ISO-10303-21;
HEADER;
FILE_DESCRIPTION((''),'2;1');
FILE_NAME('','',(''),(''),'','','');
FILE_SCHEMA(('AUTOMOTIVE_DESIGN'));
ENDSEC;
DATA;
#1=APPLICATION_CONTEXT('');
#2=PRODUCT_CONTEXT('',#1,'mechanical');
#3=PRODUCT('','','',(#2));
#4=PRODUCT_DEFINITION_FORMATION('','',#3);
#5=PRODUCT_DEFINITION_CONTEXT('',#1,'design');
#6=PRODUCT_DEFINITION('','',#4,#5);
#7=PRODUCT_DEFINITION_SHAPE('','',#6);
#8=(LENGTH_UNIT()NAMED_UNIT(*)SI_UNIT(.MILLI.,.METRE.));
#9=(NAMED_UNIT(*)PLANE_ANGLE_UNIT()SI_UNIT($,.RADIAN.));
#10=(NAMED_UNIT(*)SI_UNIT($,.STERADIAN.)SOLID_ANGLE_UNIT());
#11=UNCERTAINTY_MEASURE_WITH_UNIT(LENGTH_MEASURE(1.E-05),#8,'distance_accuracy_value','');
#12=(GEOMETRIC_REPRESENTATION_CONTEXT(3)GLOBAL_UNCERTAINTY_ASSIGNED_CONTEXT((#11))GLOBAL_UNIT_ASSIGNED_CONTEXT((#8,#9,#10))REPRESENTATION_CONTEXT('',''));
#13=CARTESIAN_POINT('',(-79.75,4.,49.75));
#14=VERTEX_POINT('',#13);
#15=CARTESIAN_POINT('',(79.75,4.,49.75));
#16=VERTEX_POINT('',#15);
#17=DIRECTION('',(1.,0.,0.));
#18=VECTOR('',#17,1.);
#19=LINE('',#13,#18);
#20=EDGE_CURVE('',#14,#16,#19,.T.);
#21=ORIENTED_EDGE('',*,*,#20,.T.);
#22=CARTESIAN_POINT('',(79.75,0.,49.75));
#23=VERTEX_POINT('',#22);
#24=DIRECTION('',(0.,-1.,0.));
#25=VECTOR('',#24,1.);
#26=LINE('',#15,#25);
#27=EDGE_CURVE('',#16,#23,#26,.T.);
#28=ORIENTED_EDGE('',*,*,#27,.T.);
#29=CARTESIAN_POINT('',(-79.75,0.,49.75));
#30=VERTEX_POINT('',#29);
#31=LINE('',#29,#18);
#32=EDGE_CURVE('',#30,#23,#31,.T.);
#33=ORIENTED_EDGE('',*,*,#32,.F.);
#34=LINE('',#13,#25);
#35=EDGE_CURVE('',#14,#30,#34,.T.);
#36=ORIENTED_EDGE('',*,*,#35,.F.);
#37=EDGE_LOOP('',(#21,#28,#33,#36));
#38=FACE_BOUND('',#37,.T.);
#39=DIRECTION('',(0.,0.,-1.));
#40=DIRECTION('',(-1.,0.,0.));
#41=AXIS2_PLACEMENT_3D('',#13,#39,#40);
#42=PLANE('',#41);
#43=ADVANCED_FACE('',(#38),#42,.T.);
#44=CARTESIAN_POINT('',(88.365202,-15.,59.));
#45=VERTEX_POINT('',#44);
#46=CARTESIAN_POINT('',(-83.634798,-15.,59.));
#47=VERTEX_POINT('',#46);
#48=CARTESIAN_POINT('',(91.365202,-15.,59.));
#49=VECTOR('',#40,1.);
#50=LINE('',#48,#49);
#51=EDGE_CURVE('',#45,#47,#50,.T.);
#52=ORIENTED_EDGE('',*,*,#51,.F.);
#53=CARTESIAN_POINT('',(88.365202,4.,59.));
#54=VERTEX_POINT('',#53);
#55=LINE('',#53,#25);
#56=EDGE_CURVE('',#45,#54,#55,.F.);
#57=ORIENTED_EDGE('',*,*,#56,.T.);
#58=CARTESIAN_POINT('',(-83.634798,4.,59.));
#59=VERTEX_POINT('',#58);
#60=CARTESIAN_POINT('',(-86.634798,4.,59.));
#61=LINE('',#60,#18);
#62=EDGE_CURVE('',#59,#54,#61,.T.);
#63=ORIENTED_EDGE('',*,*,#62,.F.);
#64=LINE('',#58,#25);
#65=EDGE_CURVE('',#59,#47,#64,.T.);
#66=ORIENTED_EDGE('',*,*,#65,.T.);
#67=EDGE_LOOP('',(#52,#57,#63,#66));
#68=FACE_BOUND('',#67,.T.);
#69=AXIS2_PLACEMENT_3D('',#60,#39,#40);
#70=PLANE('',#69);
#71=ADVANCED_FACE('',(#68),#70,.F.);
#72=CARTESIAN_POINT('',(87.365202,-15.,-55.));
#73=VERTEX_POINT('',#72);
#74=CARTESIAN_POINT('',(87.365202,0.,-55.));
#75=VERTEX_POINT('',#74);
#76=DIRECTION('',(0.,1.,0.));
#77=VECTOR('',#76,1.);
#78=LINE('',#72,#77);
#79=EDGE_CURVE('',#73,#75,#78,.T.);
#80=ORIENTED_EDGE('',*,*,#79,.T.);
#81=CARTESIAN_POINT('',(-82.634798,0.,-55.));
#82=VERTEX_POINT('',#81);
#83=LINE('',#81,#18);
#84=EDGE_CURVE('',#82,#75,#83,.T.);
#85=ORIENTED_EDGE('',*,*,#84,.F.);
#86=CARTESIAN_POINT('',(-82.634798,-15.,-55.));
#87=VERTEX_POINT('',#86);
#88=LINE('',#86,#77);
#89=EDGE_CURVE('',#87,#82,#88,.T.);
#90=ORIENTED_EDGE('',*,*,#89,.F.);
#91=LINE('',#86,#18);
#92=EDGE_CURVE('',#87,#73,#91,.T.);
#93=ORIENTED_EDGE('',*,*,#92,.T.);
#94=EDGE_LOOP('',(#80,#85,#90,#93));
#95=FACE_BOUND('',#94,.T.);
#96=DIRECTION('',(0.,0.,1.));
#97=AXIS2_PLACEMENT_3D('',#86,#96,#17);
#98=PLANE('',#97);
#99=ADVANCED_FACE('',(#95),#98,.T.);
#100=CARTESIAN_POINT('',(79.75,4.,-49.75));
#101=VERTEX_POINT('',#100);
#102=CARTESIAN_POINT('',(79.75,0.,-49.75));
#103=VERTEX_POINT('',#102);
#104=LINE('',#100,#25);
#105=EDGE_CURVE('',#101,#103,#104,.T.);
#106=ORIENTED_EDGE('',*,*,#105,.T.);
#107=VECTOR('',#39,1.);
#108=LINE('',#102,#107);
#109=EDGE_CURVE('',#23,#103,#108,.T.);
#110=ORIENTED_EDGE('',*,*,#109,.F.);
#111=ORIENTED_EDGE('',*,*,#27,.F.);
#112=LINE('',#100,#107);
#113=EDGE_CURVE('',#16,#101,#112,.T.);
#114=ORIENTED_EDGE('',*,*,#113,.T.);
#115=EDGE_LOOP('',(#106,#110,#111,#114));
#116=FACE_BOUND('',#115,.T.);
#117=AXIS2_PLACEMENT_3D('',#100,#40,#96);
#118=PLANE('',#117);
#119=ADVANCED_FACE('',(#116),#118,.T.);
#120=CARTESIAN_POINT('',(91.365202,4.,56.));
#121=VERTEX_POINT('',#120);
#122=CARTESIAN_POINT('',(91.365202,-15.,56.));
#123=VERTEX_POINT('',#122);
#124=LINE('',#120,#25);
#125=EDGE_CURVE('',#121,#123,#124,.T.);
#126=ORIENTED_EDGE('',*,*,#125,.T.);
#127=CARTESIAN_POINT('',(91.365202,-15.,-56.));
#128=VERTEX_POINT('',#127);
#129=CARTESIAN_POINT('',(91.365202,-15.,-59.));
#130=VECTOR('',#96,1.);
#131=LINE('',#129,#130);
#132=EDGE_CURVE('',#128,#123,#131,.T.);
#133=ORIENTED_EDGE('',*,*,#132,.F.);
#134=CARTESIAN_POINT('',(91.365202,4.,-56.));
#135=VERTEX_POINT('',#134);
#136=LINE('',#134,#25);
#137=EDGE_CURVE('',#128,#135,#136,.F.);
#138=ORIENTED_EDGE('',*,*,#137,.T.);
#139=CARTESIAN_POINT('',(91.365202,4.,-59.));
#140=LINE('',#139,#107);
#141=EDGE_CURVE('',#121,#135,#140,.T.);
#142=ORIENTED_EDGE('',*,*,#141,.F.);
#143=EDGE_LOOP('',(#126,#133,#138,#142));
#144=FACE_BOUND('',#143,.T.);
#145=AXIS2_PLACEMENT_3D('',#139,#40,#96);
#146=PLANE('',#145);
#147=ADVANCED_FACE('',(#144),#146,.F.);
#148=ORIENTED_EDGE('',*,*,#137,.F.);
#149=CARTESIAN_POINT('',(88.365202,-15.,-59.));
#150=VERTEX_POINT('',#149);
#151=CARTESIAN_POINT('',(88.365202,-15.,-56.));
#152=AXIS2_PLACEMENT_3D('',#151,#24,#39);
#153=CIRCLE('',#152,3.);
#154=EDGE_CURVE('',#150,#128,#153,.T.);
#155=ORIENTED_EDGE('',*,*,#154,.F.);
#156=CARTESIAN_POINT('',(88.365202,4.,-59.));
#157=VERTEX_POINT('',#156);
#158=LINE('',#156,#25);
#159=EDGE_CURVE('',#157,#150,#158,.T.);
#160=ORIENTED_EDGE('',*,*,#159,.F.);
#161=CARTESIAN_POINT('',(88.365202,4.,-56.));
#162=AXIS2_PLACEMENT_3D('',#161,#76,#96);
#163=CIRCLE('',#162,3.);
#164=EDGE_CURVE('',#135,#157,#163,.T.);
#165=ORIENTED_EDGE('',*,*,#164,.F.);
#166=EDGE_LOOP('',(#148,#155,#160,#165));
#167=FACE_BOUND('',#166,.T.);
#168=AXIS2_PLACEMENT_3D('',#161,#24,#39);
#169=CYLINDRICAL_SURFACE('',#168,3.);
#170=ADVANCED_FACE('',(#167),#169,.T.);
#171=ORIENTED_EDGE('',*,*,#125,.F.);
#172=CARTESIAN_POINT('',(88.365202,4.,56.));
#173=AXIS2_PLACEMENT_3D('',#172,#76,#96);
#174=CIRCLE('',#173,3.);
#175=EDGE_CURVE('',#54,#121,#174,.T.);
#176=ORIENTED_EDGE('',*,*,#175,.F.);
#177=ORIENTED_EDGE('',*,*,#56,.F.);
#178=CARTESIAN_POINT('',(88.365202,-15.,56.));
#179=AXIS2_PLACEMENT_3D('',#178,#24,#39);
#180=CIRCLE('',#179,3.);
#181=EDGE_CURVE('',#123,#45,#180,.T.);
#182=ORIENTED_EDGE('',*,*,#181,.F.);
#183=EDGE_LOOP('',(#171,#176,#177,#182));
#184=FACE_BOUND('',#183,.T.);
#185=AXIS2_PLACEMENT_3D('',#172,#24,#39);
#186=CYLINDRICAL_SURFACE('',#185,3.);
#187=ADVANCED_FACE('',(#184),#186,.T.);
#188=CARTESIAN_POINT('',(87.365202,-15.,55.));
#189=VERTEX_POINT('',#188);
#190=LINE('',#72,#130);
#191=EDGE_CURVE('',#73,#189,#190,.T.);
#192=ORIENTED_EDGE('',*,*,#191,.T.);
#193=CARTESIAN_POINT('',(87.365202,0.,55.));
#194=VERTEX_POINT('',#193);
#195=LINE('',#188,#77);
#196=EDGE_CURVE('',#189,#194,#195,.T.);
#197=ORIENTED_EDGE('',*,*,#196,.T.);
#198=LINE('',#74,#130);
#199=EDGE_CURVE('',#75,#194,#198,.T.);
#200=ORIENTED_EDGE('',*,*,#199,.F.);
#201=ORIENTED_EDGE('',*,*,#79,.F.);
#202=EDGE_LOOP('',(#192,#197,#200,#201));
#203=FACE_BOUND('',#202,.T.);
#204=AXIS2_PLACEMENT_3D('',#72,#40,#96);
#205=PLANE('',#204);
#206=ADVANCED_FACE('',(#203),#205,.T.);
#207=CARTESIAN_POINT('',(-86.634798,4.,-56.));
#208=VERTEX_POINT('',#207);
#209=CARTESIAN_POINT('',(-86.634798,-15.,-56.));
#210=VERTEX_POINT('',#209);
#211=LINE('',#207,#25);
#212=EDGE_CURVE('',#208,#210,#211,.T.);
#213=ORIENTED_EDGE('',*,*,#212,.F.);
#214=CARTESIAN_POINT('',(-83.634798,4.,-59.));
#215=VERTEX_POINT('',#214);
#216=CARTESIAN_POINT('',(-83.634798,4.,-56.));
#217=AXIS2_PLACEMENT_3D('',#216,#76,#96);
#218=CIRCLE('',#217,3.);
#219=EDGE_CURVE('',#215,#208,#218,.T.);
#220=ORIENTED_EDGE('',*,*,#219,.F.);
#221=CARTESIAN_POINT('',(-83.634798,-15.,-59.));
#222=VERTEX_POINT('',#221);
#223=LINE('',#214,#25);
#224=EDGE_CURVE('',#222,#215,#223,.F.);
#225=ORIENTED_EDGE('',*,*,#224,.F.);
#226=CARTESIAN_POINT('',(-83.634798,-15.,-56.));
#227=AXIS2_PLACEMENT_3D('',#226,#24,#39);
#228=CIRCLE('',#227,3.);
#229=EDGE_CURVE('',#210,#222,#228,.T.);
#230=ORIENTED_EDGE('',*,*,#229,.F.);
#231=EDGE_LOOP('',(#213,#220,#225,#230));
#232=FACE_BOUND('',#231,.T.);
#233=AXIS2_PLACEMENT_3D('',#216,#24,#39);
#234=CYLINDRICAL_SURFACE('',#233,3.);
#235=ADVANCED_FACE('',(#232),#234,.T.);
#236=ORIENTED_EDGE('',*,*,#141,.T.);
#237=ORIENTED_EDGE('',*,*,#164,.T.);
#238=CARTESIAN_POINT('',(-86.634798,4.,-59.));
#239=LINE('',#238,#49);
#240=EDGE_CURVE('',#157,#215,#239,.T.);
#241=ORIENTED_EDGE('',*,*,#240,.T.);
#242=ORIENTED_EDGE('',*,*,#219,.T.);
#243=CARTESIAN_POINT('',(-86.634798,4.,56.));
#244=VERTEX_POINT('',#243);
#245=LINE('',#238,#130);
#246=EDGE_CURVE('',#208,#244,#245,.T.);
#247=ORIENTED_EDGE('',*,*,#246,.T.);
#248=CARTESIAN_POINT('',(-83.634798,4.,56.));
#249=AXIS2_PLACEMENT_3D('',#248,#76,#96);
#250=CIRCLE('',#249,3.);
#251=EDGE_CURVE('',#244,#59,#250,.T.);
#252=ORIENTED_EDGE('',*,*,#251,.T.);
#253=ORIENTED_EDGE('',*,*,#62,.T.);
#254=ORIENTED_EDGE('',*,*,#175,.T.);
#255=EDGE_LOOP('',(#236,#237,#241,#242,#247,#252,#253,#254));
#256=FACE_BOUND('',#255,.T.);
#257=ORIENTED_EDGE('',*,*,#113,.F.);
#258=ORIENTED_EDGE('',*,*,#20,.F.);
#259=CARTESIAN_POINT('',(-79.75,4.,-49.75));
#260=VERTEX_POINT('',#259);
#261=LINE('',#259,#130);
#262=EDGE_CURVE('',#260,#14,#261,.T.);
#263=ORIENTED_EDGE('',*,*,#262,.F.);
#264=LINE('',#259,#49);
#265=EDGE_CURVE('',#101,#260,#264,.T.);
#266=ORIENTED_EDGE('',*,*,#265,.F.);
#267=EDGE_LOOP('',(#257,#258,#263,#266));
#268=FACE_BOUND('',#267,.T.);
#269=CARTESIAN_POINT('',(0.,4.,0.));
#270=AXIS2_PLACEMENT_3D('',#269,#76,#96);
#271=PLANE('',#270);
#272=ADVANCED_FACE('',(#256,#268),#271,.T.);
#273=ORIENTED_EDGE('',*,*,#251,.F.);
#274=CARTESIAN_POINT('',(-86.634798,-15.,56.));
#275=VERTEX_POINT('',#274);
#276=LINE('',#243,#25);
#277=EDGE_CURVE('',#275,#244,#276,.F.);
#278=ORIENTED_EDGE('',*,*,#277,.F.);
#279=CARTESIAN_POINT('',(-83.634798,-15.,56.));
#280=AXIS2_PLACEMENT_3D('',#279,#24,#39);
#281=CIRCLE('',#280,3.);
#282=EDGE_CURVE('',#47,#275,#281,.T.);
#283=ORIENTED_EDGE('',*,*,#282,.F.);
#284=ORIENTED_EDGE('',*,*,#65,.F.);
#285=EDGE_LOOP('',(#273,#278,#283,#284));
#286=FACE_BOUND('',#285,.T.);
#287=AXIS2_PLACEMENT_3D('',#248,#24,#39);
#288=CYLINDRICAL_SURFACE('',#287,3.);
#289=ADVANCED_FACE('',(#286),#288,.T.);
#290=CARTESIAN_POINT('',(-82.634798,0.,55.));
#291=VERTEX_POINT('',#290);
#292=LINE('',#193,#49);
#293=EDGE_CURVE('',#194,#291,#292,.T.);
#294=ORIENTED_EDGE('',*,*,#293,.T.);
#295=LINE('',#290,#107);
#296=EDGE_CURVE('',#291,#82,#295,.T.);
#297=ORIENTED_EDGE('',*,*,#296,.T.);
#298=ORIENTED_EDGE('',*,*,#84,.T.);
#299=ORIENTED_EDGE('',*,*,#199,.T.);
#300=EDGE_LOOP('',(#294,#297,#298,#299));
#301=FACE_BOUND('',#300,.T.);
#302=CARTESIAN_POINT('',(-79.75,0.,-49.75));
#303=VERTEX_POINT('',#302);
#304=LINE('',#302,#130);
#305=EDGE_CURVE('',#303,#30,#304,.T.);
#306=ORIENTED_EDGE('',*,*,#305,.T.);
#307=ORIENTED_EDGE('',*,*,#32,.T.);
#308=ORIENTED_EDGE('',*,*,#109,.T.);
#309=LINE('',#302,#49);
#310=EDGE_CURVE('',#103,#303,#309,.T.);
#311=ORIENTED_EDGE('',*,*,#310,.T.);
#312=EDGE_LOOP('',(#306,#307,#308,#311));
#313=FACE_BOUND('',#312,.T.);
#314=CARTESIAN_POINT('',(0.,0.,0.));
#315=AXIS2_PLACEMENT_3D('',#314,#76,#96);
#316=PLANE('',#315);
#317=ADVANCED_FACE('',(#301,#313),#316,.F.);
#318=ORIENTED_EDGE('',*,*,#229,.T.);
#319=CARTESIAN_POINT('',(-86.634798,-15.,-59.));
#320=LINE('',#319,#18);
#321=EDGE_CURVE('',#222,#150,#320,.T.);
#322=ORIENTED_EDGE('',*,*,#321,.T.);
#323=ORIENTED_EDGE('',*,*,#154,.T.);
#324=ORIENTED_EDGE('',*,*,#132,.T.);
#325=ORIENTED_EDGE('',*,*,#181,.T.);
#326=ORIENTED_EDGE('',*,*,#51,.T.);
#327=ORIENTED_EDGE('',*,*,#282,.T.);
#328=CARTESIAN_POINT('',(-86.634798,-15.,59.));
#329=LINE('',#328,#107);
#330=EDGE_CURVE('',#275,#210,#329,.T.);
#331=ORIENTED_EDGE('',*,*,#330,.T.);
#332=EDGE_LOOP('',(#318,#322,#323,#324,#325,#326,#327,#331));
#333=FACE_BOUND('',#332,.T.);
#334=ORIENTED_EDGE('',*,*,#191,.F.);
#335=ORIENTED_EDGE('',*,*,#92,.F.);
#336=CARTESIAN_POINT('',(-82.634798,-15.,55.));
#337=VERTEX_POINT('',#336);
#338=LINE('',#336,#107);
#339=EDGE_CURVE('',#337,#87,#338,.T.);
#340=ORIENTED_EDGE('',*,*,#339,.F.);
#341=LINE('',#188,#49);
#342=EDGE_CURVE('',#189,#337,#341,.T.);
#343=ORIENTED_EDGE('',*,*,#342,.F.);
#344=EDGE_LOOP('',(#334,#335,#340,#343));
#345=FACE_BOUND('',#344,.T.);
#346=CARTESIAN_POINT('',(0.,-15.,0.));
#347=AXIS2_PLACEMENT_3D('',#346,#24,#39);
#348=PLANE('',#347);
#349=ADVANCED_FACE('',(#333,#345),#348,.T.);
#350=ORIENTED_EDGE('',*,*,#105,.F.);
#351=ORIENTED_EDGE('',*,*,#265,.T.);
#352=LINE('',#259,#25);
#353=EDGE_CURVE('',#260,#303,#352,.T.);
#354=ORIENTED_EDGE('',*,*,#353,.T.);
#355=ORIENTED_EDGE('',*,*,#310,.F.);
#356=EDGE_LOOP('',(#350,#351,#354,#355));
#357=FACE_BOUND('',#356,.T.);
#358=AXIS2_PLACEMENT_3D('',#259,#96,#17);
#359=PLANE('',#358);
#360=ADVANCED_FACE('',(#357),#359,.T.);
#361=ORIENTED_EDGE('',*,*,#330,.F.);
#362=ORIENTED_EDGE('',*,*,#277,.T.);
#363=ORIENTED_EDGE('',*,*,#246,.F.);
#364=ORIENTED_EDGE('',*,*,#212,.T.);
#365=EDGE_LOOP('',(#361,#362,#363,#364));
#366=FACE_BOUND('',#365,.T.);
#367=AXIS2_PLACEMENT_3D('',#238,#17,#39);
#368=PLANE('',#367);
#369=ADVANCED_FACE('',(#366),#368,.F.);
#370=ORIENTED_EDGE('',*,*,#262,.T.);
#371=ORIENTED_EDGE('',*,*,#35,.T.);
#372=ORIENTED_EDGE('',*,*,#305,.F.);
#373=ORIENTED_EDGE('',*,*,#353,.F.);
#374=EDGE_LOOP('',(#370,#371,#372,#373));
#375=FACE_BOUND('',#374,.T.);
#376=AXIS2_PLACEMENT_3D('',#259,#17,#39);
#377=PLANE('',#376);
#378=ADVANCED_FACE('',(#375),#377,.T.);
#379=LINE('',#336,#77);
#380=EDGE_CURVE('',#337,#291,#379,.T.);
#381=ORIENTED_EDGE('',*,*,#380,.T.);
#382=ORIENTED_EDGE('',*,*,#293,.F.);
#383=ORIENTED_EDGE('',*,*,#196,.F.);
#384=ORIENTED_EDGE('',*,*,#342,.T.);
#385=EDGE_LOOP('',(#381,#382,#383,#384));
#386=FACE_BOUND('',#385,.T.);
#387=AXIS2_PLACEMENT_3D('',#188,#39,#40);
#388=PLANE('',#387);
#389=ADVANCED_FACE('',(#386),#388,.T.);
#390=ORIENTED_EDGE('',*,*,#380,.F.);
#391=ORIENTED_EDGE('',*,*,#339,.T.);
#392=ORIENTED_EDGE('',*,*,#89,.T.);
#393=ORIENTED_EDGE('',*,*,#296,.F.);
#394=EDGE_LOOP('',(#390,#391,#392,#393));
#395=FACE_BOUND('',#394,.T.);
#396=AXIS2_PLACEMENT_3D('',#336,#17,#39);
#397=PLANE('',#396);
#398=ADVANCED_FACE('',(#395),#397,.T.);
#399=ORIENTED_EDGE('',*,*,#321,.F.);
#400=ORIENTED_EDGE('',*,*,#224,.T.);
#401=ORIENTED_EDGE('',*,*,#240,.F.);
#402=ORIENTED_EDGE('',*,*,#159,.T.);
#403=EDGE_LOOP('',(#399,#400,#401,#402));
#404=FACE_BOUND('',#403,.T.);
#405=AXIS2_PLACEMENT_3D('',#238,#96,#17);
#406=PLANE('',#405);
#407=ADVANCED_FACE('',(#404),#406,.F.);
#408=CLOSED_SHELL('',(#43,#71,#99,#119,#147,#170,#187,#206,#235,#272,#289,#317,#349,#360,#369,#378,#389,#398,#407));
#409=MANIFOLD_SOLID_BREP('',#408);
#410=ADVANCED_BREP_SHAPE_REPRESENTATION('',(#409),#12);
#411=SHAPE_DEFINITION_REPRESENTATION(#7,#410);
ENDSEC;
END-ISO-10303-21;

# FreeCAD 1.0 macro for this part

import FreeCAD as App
import Part
import Sketcher
from FreeCAD import Vector


def edges_at(feature, points):
    """Names of the edges that pass closest to the given points."""
    edges = feature.Shape.Edges
    near = lambda p: min(range(len(edges)), key=lambda i: edges[i].distToShape(Part.Vertex(*p))[0])
    return sorted({f"Edge{near(p) + 1}" for p in points})

doc = App.newDocument("Part")
params = doc.addObject("Spreadsheet::Sheet", "Params")
for row, (alias, value) in enumerate([
    ("sketch1_width", "178 mm"),
    ("sketch1_height", "118 mm"),
    ("sketch1_width2", "159.5 mm"),
    ("sketch1_height2", "99.5 mm"),
    ("pad1_length", "4 mm"),
    ("sketch2_width", "178 mm"),
    ("sketch2_width2", "170 mm"),
    ("sketch2_height", "118 mm"),
    ("sketch2_height2", "110 mm"),
    ("pad2_length", "15 mm"),
    ("fillet_radius", "3 mm"),
], start=1):
    params.set(f"A{row}", alias)
    params.set(f"B{row}", "=" + value)
    params.setAlias(f"B{row}", alias)

body = doc.addObject("PartDesign::Body", "Body")

# Sketch on XZ plane
sketch1 = body.newObject("Sketcher::SketchObject", "Sketch")
sketch1.AttachmentSupport = (doc.getObject("XZ_Plane"), [""])
sketch1.MapMode = "FlatFace"
sketch1.addGeometry(Part.LineSegment(Vector(-87, -59, 0), Vector(-87, 59, 0)), False)
sketch1.addGeometry(Part.LineSegment(Vector(-87, 59, 0), Vector(91, 59, 0)), False)
sketch1.addGeometry(Part.LineSegment(Vector(91, 59, 0), Vector(91, -59, 0)), False)
sketch1.addGeometry(Part.LineSegment(Vector(91, -59, 0), Vector(-87, -59, 0)), False)
sketch1.addGeometry(Part.LineSegment(Vector(80, 50, 0), Vector(-80, 50, 0)), False)
sketch1.addGeometry(Part.LineSegment(Vector(-80, 50, 0), Vector(-80, -50, 0)), False)
sketch1.addGeometry(Part.LineSegment(Vector(-80, -50, 0), Vector(80, -50, 0)), False)
sketch1.addGeometry(Part.LineSegment(Vector(80, -50, 0), Vector(80, 50, 0)), False)
sketch1.addConstraint(Sketcher.Constraint("Coincident", 0, 2, 1, 1))
sketch1.addConstraint(Sketcher.Constraint("Coincident", 1, 2, 2, 1))
sketch1.addConstraint(Sketcher.Constraint("Coincident", 2, 2, 3, 1))
sketch1.addConstraint(Sketcher.Constraint("Coincident", 3, 2, 0, 1))
sketch1.addConstraint(Sketcher.Constraint("Coincident", 4, 2, 5, 1))
sketch1.addConstraint(Sketcher.Constraint("Coincident", 5, 2, 6, 1))
sketch1.addConstraint(Sketcher.Constraint("Coincident", 6, 2, 7, 1))
sketch1.addConstraint(Sketcher.Constraint("Coincident", 7, 2, 4, 1))
sketch1.addConstraint(Sketcher.Constraint("Vertical", 0))
sketch1.addConstraint(Sketcher.Constraint("Horizontal", 1))
sketch1.addConstraint(Sketcher.Constraint("Vertical", 2))
sketch1.addConstraint(Sketcher.Constraint("Horizontal", 3))
sketch1.addConstraint(Sketcher.Constraint("Horizontal", 4))
sketch1.addConstraint(Sketcher.Constraint("Vertical", 5))
sketch1.addConstraint(Sketcher.Constraint("Horizontal", 6))
sketch1.addConstraint(Sketcher.Constraint("Vertical", 7))
sketch1.addConstraint(Sketcher.Constraint("Symmetric", 4, 2, 6, 2, -1, 1))
sketch1.addConstraint(Sketcher.Constraint("DistanceX", 1, 1, 1, 2, 178.0))
sketch1.addConstraint(Sketcher.Constraint("DistanceY", 0, 1, 0, 2, 118.0))
sketch1.addConstraint(Sketcher.Constraint("DistanceX", 4, 2, 4, 1, 159.5))
sketch1.addConstraint(Sketcher.Constraint("DistanceY", 5, 2, 5, 1, 99.5))
sketch1.addConstraint(Sketcher.Constraint("DistanceY", -1, 1, 0, 2, 59.0))
sketch1.addConstraint(Sketcher.Constraint("DistanceX", 0, 2, -1, 1, 86.634798))
sketch1.setExpression("Constraints[17]", "Params.sketch1_width")
sketch1.setExpression("Constraints[18]", "Params.sketch1_height")
sketch1.setExpression("Constraints[19]", "Params.sketch1_width2")
sketch1.setExpression("Constraints[20]", "Params.sketch1_height2")
pad1 = body.newObject("PartDesign::Pad", "Pad")
pad1.Profile = sketch1
pad1.setExpression("Length", "Params.pad1_length")
pad1.Reversed = True

# Sketch on XZ plane
sketch2 = body.newObject("Sketcher::SketchObject", "Sketch001")
sketch2.AttachmentSupport = (doc.getObject("XZ_Plane"), [""])
sketch2.MapMode = "FlatFace"
sketch2.addGeometry(Part.LineSegment(Vector(-87, 59, 0), Vector(-87, -59, 0)), False)
sketch2.addGeometry(Part.LineSegment(Vector(-87, -59, 0), Vector(91, -59, 0)), False)
sketch2.addGeometry(Part.LineSegment(Vector(91, -59, 0), Vector(91, 59, 0)), False)
sketch2.addGeometry(Part.LineSegment(Vector(91, 59, 0), Vector(-87, 59, 0)), False)
sketch2.addGeometry(Part.LineSegment(Vector(87, -55, 0), Vector(-83, -55, 0)), False)
sketch2.addGeometry(Part.LineSegment(Vector(-83, -55, 0), Vector(-83, 55, 0)), False)
sketch2.addGeometry(Part.LineSegment(Vector(-83, 55, 0), Vector(87, 55, 0)), False)
sketch2.addGeometry(Part.LineSegment(Vector(87, 55, 0), Vector(87, -55, 0)), False)
sketch2.addConstraint(Sketcher.Constraint("Coincident", 0, 2, 1, 1))
sketch2.addConstraint(Sketcher.Constraint("Coincident", 1, 2, 2, 1))
sketch2.addConstraint(Sketcher.Constraint("Coincident", 2, 2, 3, 1))
sketch2.addConstraint(Sketcher.Constraint("Coincident", 3, 2, 0, 1))
sketch2.addConstraint(Sketcher.Constraint("Coincident", 4, 2, 5, 1))
sketch2.addConstraint(Sketcher.Constraint("Coincident", 5, 2, 6, 1))
sketch2.addConstraint(Sketcher.Constraint("Coincident", 6, 2, 7, 1))
sketch2.addConstraint(Sketcher.Constraint("Coincident", 7, 2, 4, 1))
sketch2.addConstraint(Sketcher.Constraint("Vertical", 0))
sketch2.addConstraint(Sketcher.Constraint("Horizontal", 1))
sketch2.addConstraint(Sketcher.Constraint("Vertical", 2))
sketch2.addConstraint(Sketcher.Constraint("Horizontal", 3))
sketch2.addConstraint(Sketcher.Constraint("Horizontal", 4))
sketch2.addConstraint(Sketcher.Constraint("Vertical", 5))
sketch2.addConstraint(Sketcher.Constraint("Horizontal", 6))
sketch2.addConstraint(Sketcher.Constraint("Vertical", 7))
sketch2.addConstraint(Sketcher.Constraint("DistanceX", 1, 1, 1, 2, 178.0))
sketch2.addConstraint(Sketcher.Constraint("DistanceX", 4, 2, 4, 1, 170.0))
sketch2.addConstraint(Sketcher.Constraint("DistanceY", 0, 2, 0, 1, 118.0))
sketch2.addConstraint(Sketcher.Constraint("DistanceY", 5, 1, 5, 2, 110.0))
sketch2.addConstraint(Sketcher.Constraint("DistanceY", 0, 2, -1, 1, 59.0))
sketch2.addConstraint(Sketcher.Constraint("DistanceY", 4, 2, -1, 1, 55.0))
sketch2.addConstraint(Sketcher.Constraint("DistanceX", 0, 2, 4, 2, 4.0))
sketch2.addConstraint(Sketcher.Constraint("DistanceX", 0, 2, -1, 1, 86.634798))
sketch2.setExpression("Constraints[16]", "Params.sketch2_width")
sketch2.setExpression("Constraints[17]", "Params.sketch2_width2")
sketch2.setExpression("Constraints[18]", "Params.sketch2_height")
sketch2.setExpression("Constraints[19]", "Params.sketch2_height2")
pad2 = body.newObject("PartDesign::Pad", "Pad001")
pad2.Profile = sketch2
pad2.setExpression("Length", "Params.pad2_length")
doc.recompute()

fillet = body.newObject("PartDesign::Fillet", "Fillet")
fillet.Base = (pad2, edges_at(pad2, [
    (-86.635, -5.5, -59),
    (91.365, -5.5, -59),
    (91.365, -5.5, 59),
    (-86.635, -5.5, 59),
]))
fillet.setExpression("Radius", "Params.fillet_radius")

doc.recompute()
